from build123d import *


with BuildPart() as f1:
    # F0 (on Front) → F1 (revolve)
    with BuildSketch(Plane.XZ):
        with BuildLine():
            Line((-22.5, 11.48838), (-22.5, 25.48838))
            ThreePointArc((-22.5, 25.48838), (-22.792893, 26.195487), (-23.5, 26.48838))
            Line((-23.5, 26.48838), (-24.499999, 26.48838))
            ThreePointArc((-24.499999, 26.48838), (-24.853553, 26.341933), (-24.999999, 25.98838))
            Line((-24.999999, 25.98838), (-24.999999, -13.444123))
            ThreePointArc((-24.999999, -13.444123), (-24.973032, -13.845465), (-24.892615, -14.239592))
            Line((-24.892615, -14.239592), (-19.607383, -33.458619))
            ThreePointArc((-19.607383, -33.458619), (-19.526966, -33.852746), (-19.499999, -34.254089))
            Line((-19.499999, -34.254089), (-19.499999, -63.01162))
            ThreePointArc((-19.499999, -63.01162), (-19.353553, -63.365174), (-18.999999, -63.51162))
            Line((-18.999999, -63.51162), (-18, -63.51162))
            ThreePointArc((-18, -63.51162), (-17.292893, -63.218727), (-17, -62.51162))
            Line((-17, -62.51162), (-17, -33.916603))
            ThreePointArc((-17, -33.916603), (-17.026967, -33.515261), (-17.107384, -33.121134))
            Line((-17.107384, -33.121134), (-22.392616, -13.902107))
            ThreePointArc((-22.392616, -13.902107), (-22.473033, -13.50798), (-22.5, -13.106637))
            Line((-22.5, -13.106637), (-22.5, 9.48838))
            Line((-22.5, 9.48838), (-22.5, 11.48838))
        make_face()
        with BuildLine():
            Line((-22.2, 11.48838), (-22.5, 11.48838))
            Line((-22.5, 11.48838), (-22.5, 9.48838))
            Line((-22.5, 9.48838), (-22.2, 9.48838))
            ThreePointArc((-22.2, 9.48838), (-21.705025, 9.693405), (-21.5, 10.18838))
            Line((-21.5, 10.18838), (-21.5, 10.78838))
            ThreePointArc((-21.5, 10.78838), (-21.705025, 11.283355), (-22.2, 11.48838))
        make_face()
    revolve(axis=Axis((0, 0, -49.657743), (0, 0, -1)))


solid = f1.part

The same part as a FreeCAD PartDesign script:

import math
import FreeCAD as App
import Part
import Sketcher
from FreeCAD import Vector
Q = App.Units.Quantity

doc = App.newDocument("Part")
body = doc.addObject("PartDesign::Body", "Body")

sketch1 = body.newObject("Sketcher::SketchObject", "Sketch")
sketch1.AttachmentSupport = (doc.getObject("XZ_Plane"), [""])
sketch1.MapMode = "FlatFace"
sketch1.addGeometry(Part.ArcOfCircle(Part.Circle(Vector(-23.499999, 25.488381, 0), Vector(0, 0, 1), 0.999999), math.radians(-0.000043), math.radians(90.000043)), False)
sketch1.addGeometry(Part.LineSegment(Vector(-23.5, 26.48838, 0), Vector(-24.499999, 26.48838, 0)), False)
sketch1.addGeometry(Part.ArcOfCircle(Part.Circle(Vector(-24.499999, 25.98838, 0), Vector(0, 0, 1), 0.5), math.radians(89.999957), math.radians(180.000043)), False)
sketch1.addGeometry(Part.LineSegment(Vector(-24.999999, 25.98838, 0), Vector(-24.999999, -13.444123, 0)), False)
sketch1.addGeometry(Part.ArcOfCircle(Part.Circle(Vector(-22.000027, -13.444126, 0), Vector(0, 0, 1), 2.999972), math.radians(179.99995), math.radians(195.376335)), False)
sketch1.addGeometry(Part.LineSegment(Vector(-24.892615, -14.239592, 0), Vector(-19.607383, -33.458619, 0)), False)
sketch1.addGeometry(Part.ArcOfCircle(Part.Circle(Vector(-22.499971, -34.254085, 0), Vector(0, 0, 1), 2.999972), math.radians(-0.000069), math.radians(15.376335)), False)
sketch1.addGeometry(Part.LineSegment(Vector(-19.499999, -34.254089, 0), Vector(-19.499999, -63.01162, 0)), False)
sketch1.addGeometry(Part.ArcOfCircle(Part.Circle(Vector(-19.000001, -63.011622, 0), Vector(0, 0, 1), 0.499998), math.radians(179.999762), math.radians(270.000238)), False)
sketch1.addGeometry(Part.LineSegment(Vector(-18.999999, -63.51162, 0), Vector(-18, -63.51162, 0)), False)
sketch1.addGeometry(Part.ArcOfCircle(Part.Circle(Vector(-17.999999, -62.511621, 0), Vector(0, 0, 1), 0.999999), math.radians(-90.000043), math.radians(0.000043)), False)
sketch1.addGeometry(Part.LineSegment(Vector(-17, -62.51162, 0), Vector(-17, -33.916603, 0)), False)
sketch1.addGeometry(Part.ArcOfCircle(Part.Circle(Vector(-19.999972, -33.9166, 0), Vector(0, 0, 1), 2.999972), math.radians(-0.00005), math.radians(15.376335)), False)
sketch1.addGeometry(Part.LineSegment(Vector(-17.107384, -33.121134, 0), Vector(-22.392616, -13.902107, 0)), False)
sketch1.addGeometry(Part.ArcOfCircle(Part.Circle(Vector(-19.500028, -13.106641, 0), Vector(0, 0, 1), 2.999972), math.radians(179.999931), math.radians(195.376335)), False)
sketch1.addGeometry(Part.LineSegment(Vector(-22.5, -13.106637, 0), Vector(-22.5, 9.48838, 0)), False)
sketch1.addGeometry(Part.LineSegment(Vector(-22.5, 9.48838, 0), Vector(-22.2, 9.48838, 0)), False)
sketch1.addGeometry(Part.ArcOfCircle(Part.Circle(Vector(-22.199999, 10.188379, 0), Vector(0, 0, 1), 0.699999), math.radians(-90.000071), math.radians(0.000071)), False)
sketch1.addGeometry(Part.LineSegment(Vector(-21.5, 10.18838, 0), Vector(-21.5, 10.78838, 0)), False)
sketch1.addGeometry(Part.ArcOfCircle(Part.Circle(Vector(-22.199999, 10.788381, 0), Vector(0, 0, 1), 0.699999), math.radians(-0.000071), math.radians(90.000071)), False)
sketch1.addGeometry(Part.LineSegment(Vector(-22.2, 11.48838, 0), Vector(-22.5, 11.48838, 0)), False)
sketch1.addGeometry(Part.LineSegment(Vector(-22.5, 11.48838, 0), Vector(-22.5, 25.48838, 0)), False)
sketch1.addConstraint(Sketcher.Constraint("Tangent", 0, 2, 1, 1))
sketch1.addConstraint(Sketcher.Constraint("Tangent", 1, 2, 2, 1))
sketch1.addConstraint(Sketcher.Constraint("Tangent", 2, 2, 3, 1))
sketch1.addConstraint(Sketcher.Constraint("Tangent", 3, 2, 4, 1))
sketch1.addConstraint(Sketcher.Constraint("Tangent", 4, 2, 5, 1))
sketch1.addConstraint(Sketcher.Constraint("Tangent", 5, 2, 6, 2))
sketch1.addConstraint(Sketcher.Constraint("Tangent", 6, 1, 7, 1))
sketch1.addConstraint(Sketcher.Constraint("Coincident", 7, 2, 8, 1))
sketch1.addConstraint(Sketcher.Constraint("Coincident", 8, 2, 9, 1))
sketch1.addConstraint(Sketcher.Constraint("Tangent", 9, 2, 10, 1))
sketch1.addConstraint(Sketcher.Constraint("Tangent", 10, 2, 11, 1))
sketch1.addConstraint(Sketcher.Constraint("Tangent", 11, 2, 12, 1))
sketch1.addConstraint(Sketcher.Constraint("Tangent", 12, 2, 13, 1))
sketch1.addConstraint(Sketcher.Constraint("Tangent", 13, 2, 14, 2))
sketch1.addConstraint(Sketcher.Constraint("Tangent", 14, 1, 15, 1))
sketch1.addConstraint(Sketcher.Constraint("Coincident", 15, 2, 16, 1))
sketch1.addConstraint(Sketcher.Constraint("Tangent", 16, 2, 17, 1))
sketch1.addConstraint(Sketcher.Constraint("Tangent", 17, 2, 18, 1))
sketch1.addConstraint(Sketcher.Constraint("Tangent", 18, 2, 19, 1))
sketch1.addConstraint(Sketcher.Constraint("Tangent", 19, 2, 20, 1))
sketch1.addConstraint(Sketcher.Constraint("Coincident", 20, 2, 21, 1))
sketch1.addConstraint(Sketcher.Constraint("Tangent", 21, 2, 0, 1))
sketch1.addConstraint(Sketcher.Constraint("Horizontal", 1))
sketch1.addConstraint(Sketcher.Constraint("Vertical", 3))
sketch1.addConstraint(Sketcher.Constraint("Vertical", 7))
sketch1.addConstraint(Sketcher.Constraint("Horizontal", 9))
sketch1.addConstraint(Sketcher.Constraint("Vertical", 11))
sketch1.addConstraint(Sketcher.Constraint("Vertical", 15))
sketch1.addConstraint(Sketcher.Constraint("Horizontal", 16))
sketch1.addConstraint(Sketcher.Constraint("Vertical", 18))
sketch1.addConstraint(Sketcher.Constraint("Horizontal", 20))
sketch1.addConstraint(Sketcher.Constraint("Vertical", 21))
sketch1.addConstraint(Sketcher.Constraint("Equal", 4, 6))
sketch1.addConstraint(Sketcher.Constraint("Equal", 2, 8))
sketch1.addConstraint(Sketcher.Constraint("Equal", 0, 10))
sketch1.addConstraint(Sketcher.Constraint("Equal", 6, 12))
sketch1.addConstraint(Sketcher.Constraint("Equal", 12, 14))
sketch1.addConstraint(Sketcher.Constraint("Equal", 17, 19))
sketch1.addConstraint(Sketcher.Constraint("Parallel", 5, 13))
sketch1.addConstraint(Sketcher.Constraint("Vertical", 15, 2, 20, 2))
sketch1.addConstraint(Sketcher.Constraint("Equal", 1, 9))
sketch1.addConstraint(Sketcher.Constraint("Equal", 5, 13))
sketch1.addConstraint(Sketcher.Constraint("Radius", 0, Q("0.999999 mm")))
sketch1.addConstraint(Sketcher.Constraint("Radius", 2, Q("0.5 mm")))
sketch1.addConstraint(Sketcher.Constraint("Radius", 17, Q("0.699999 mm")))
sketch1.addConstraint(Sketcher.Constraint("DistanceX", 1, 2, 1, 1, Q("0.999999 mm")))
sketch1.addConstraint(Sketcher.Constraint("DistanceY", 21, 1, 21, 2, Q("14 mm")))
sketch1.addConstraint(Sketcher.Constraint("DistanceX", 16, 1, 16, 2, Q("0.3 mm")))
sketch1.addConstraint(Sketcher.Constraint("DistanceY", 18, 1, 18, 2, Q("0.6 mm")))
sketch1.addConstraint(Sketcher.Constraint("DistanceX", 8, 3, -1, 1, Q("19.000001 mm")))
sketch1.addConstraint(Sketcher.Constraint("DistanceX", 2, 2, -1, 1, Q("24.999999 mm")))
sketch1.addConstraint(Sketcher.Constraint("DistanceY", 10, 3, 0, 3, Q("88.000001 mm")))
sketch1.addConstraint(Sketcher.Constraint("DistanceY", 7, 2, 10, 3, Q("0.499999 mm")))
sketch1.addConstraint(Sketcher.Constraint("Radius", 4, Q("2.999972 mm")))
sketch1.addConstraint(Sketcher.Constraint("DistanceY", 7, 2, 7, 1, Q("28.757531 mm")))
sketch1.addConstraint(Sketcher.Constraint("DistanceY", 12, 3, -1, 1, Q("33.9166 mm")))
sketch1.addConstraint(Sketcher.Constraint("DistanceY", 3, 2, 3, 1, Q("39.432503 mm")))
sketch1.addConstraint(Sketcher.Constraint("DistanceY", 11, 1, 11, 2, Q("28.595017 mm")))
revolution = body.newObject("PartDesign::Revolution", "Revolution")
revolution.Profile = sketch1
revolution.ReferenceAxis = (sketch1, ["V_Axis"])
revolution.Angle = 360

doc.recompute()
